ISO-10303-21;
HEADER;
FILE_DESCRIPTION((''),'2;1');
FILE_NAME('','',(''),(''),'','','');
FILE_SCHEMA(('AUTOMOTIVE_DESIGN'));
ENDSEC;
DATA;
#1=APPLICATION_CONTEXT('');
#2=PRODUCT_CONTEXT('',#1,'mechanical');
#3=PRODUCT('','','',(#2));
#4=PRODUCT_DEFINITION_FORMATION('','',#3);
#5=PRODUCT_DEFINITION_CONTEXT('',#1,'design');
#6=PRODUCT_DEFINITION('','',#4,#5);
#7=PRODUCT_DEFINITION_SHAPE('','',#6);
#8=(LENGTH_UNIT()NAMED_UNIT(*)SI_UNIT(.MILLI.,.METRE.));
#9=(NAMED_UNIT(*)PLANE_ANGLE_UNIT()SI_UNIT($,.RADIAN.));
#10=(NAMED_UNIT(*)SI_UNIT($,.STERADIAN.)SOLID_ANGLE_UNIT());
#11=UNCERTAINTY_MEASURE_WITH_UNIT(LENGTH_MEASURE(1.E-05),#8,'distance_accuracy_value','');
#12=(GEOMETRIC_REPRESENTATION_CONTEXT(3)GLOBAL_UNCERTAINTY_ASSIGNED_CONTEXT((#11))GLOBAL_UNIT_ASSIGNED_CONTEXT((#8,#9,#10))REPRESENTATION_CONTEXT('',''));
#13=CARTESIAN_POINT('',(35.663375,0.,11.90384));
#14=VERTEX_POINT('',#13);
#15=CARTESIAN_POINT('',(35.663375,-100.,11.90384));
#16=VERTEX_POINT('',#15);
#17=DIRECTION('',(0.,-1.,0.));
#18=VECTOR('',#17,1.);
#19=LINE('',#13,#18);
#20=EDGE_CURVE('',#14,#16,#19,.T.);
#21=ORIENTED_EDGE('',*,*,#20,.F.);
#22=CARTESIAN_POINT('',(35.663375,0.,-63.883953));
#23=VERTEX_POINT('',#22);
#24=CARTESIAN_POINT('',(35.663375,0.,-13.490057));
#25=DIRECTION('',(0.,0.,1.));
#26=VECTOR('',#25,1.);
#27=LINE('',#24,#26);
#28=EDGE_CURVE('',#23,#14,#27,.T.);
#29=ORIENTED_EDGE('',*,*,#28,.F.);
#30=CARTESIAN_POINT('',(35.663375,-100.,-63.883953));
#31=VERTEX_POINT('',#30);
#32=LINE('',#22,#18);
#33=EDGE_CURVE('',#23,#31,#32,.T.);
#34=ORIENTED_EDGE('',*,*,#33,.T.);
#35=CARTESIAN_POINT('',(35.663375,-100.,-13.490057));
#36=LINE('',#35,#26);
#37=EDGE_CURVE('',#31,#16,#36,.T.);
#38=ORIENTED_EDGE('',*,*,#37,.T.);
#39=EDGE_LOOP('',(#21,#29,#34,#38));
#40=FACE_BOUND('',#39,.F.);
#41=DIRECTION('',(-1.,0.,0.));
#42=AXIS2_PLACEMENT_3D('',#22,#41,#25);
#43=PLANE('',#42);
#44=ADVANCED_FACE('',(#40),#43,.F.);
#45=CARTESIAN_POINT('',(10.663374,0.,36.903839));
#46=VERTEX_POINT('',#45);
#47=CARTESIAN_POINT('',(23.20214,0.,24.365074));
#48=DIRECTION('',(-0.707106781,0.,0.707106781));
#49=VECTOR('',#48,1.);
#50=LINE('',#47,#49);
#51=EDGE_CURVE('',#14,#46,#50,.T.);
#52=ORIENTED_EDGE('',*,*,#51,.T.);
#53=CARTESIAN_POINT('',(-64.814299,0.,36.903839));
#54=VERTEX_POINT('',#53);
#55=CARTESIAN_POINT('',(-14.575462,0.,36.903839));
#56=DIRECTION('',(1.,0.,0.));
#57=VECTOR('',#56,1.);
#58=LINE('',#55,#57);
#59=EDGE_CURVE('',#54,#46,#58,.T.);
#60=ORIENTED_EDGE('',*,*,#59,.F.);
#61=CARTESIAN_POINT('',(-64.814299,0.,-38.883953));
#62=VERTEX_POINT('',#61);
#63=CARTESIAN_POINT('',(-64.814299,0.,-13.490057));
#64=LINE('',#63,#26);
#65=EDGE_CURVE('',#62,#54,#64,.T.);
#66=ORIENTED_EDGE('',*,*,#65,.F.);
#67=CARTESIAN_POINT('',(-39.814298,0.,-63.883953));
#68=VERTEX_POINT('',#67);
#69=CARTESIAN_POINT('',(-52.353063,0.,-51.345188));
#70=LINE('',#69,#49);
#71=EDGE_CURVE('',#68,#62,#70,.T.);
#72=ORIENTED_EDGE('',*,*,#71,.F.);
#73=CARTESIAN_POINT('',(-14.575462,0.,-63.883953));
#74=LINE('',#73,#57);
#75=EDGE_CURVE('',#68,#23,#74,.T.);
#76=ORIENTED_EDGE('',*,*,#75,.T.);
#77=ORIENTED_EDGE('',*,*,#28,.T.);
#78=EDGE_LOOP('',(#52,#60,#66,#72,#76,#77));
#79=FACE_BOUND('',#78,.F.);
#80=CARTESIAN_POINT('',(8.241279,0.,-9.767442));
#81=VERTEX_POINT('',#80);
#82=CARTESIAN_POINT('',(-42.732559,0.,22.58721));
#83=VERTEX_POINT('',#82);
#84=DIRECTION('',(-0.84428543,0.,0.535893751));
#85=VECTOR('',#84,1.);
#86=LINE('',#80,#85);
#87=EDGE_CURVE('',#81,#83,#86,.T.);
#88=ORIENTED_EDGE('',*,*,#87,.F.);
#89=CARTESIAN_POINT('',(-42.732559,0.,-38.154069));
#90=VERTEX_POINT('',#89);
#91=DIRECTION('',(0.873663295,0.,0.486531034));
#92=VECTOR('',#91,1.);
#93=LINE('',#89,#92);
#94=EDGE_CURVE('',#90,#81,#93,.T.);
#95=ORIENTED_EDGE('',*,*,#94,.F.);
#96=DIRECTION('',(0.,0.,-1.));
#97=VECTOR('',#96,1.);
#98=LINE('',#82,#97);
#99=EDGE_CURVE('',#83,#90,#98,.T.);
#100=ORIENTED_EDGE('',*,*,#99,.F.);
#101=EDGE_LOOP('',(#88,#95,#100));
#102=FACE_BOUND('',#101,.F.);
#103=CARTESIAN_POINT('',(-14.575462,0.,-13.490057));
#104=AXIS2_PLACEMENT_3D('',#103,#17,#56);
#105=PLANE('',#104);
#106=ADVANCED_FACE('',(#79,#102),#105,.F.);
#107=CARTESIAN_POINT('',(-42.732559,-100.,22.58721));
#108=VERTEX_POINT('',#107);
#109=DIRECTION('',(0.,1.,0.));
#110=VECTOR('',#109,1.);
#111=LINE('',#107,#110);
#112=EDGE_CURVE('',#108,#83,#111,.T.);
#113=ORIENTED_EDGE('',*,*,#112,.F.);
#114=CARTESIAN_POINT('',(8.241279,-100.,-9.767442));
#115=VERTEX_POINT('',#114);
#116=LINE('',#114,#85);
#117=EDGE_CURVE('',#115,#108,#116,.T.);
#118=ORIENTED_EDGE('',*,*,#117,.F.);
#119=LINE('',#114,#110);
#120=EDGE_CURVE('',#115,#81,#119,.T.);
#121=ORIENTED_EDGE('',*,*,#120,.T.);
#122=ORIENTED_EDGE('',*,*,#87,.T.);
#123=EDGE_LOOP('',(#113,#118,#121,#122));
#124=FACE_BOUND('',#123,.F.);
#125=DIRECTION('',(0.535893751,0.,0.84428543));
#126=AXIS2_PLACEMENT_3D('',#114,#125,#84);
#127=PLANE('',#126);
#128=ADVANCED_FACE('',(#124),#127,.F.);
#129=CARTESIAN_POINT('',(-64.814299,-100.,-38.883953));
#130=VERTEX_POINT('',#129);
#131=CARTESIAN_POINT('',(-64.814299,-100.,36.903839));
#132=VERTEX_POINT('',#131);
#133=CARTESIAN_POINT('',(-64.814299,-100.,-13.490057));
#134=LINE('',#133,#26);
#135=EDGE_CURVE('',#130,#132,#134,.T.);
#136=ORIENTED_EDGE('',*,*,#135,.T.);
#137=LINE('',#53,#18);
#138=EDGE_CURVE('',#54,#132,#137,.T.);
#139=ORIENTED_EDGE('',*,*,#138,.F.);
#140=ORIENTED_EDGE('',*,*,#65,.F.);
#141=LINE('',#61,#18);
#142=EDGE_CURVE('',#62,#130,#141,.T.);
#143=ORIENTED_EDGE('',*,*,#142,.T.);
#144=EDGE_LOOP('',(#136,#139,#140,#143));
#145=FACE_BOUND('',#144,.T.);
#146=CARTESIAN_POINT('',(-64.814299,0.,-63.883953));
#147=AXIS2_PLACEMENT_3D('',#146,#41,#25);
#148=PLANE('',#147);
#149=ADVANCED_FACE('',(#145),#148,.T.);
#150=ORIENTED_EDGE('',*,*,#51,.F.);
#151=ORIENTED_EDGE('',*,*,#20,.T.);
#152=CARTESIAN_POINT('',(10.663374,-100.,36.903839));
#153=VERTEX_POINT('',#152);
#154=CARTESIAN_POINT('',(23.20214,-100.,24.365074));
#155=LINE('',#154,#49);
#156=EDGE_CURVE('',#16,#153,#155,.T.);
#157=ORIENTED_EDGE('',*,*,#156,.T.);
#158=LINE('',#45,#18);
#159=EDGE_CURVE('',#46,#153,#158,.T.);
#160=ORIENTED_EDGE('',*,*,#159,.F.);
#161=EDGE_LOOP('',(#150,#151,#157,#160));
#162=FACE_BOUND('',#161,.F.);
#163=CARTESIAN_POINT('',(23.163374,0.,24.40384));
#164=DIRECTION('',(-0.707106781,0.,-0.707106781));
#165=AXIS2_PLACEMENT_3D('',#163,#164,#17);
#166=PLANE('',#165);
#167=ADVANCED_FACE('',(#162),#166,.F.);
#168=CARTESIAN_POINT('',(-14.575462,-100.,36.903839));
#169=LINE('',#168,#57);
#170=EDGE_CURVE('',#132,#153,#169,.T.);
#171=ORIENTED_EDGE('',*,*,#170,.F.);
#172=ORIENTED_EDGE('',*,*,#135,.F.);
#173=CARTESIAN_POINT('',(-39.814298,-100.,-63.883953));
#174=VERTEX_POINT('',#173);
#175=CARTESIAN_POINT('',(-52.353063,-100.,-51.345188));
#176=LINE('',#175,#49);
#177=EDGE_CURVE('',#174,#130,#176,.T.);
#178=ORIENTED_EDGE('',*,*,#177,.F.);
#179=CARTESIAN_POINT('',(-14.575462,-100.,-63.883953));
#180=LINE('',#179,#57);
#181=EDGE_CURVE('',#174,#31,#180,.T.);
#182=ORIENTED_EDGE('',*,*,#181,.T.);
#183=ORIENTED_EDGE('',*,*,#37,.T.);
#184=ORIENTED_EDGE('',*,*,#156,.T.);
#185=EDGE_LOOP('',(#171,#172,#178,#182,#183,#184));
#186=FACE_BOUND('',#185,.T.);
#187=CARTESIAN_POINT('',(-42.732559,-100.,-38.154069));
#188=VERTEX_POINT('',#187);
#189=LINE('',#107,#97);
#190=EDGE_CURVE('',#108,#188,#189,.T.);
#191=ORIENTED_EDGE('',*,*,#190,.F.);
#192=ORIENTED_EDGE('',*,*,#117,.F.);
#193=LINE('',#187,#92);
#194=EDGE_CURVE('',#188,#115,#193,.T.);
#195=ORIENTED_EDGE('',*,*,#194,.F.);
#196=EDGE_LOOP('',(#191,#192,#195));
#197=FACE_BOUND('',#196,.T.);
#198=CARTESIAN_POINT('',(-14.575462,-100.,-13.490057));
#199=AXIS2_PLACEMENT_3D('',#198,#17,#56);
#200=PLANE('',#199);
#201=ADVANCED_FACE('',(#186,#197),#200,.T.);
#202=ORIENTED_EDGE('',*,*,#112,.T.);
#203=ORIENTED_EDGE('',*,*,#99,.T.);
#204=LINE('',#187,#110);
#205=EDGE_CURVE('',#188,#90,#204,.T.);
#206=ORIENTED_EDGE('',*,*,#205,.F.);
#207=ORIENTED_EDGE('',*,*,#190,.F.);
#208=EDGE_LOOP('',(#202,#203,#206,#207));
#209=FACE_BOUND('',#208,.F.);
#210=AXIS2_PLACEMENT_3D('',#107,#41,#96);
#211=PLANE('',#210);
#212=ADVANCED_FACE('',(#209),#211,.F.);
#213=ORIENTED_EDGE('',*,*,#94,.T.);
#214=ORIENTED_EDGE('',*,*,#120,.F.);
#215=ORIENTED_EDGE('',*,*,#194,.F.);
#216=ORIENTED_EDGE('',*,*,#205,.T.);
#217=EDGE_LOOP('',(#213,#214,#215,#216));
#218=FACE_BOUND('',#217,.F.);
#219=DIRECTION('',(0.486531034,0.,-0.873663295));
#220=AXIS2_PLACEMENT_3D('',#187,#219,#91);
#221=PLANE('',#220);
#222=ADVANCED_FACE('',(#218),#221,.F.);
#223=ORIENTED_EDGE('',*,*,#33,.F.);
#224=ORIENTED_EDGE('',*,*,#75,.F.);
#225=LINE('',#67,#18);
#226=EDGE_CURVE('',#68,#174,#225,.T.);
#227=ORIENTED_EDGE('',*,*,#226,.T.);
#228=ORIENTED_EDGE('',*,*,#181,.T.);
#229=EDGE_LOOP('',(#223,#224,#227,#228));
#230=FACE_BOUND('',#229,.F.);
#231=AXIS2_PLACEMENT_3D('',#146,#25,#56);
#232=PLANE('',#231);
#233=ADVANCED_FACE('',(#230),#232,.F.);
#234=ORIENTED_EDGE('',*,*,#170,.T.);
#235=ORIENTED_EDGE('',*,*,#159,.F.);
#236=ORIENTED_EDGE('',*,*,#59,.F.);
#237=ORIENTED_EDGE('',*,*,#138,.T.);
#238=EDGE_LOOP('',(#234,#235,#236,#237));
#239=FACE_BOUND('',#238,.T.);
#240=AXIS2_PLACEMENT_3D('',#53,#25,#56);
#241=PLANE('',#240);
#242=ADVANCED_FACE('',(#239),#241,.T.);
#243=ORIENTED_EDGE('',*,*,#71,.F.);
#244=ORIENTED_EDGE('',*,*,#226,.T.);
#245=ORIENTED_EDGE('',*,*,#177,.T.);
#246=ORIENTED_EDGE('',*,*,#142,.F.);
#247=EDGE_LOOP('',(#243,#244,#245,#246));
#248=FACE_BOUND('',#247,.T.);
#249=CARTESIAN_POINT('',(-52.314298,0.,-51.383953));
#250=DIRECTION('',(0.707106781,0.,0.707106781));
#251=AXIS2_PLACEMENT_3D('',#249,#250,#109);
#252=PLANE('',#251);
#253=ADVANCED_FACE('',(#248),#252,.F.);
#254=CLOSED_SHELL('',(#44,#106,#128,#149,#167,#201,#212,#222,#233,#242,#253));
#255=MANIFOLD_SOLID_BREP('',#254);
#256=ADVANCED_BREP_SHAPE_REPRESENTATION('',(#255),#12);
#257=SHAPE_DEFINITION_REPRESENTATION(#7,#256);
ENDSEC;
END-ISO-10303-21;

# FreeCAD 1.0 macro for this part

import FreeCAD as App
import Part
import Sketcher
Q = App.Units.Quantity


def edges_at(feature, points):
    """Names of the edges that pass closest to the given points."""
    edges = feature.Shape.Edges
    near = lambda p: min(range(len(edges)), key=lambda i: edges[i].distToShape(Part.Vertex(*p))[0])
    return sorted({f"Edge{near(p) + 1}" for p in points})

doc = App.newDocument("Part")
body = doc.addObject("PartDesign::Body", "Body")

sketch1 = body.newObject("Sketcher::SketchObject", "Sketch")
sketch1.AttachmentSupport = (doc.getObject("XZ_Plane"), [""])
sketch1.MapMode = "FlatFace"
sketch1.addGeometry(Part.LineSegment(App.Vector(-65, 37, 0), App.Vector(-65, -64, 0)), False)
sketch1.addGeometry(Part.LineSegment(App.Vector(-65, -64, 0), App.Vector(36, -64, 0)), False)
sketch1.addGeometry(Part.LineSegment(App.Vector(36, -64, 0), App.Vector(36, 37, 0)), False)
sketch1.addGeometry(Part.LineSegment(App.Vector(36, 37, 0), App.Vector(-65, 37, 0)), False)
sketch1.addConstraint(Sketcher.Constraint("Coincident", 0, 2, 1, 1))
sketch1.addConstraint(Sketcher.Constraint("Coincident", 1, 2, 2, 1))
sketch1.addConstraint(Sketcher.Constraint("Coincident", 2, 2, 3, 1))
sketch1.addConstraint(Sketcher.Constraint("Coincident", 3, 2, 0, 1))
sketch1.addConstraint(Sketcher.Constraint("Vertical", 0))
sketch1.addConstraint(Sketcher.Constraint("Horizontal", 1))
sketch1.addConstraint(Sketcher.Constraint("Vertical", 2))
sketch1.addConstraint(Sketcher.Constraint("Horizontal", 3))
sketch1.addConstraint(Sketcher.Constraint("DistanceX", 0, 2, -1, 1, Q("64.814299 mm")))
sketch1.addConstraint(Sketcher.Constraint("DistanceX", 1, 1, 1, 2, Q("100.477673 mm")))
sketch1.addConstraint(Sketcher.Constraint("DistanceY", 0, 2, 0, 1, Q("100.787793 mm")))
sketch1.addConstraint(Sketcher.Constraint("DistanceY", -1, 1, 2, 2, Q("36.903839 mm")))
pad1 = body.newObject("PartDesign::Pad", "Pad")
pad1.Profile = sketch1
pad1.Length = 100
doc.recompute()

chamfer = body.newObject("PartDesign::Chamfer", "Chamfer")
chamfer.Base = (pad1, edges_at(pad1, [(35.663, -50, 36.904)]))
chamfer.Size = 25
doc.recompute()

chamfer2 = body.newObject("PartDesign::Chamfer", "Chamfer001")
chamfer2.Base = (chamfer, edges_at(chamfer, [(-64.814, -50, -63.884)]))
chamfer2.Size = 25

sketch2 = body.newObject("Sketcher::SketchObject", "Sketch001")
sketch2.AttachmentSupport = (doc.getObject("XZ_Plane"), [""])
sketch2.MapMode = "FlatFace"
sketch2.AttachmentOffset = App.Placement(App.Vector(0, 0, 100), App.Rotation())
sketch2.addGeometry(Part.LineSegment(App.Vector(-43, 23, 0), App.Vector(-43, -38, 0)), False)
sketch2.addGeometry(Part.LineSegment(App.Vector(-43, -38, 0), App.Vector(8, -10, 0)), False)
sketch2.addGeometry(Part.LineSegment(App.Vector(8, -10, 0), App.Vector(-43, 23, 0)), False)
sketch2.addConstraint(Sketcher.Constraint("Coincident", 0, 2, 1, 1))
sketch2.addConstraint(Sketcher.Constraint("Coincident", 1, 2, 2, 1))
sketch2.addConstraint(Sketcher.Constraint("Coincident", 2, 2, 0, 1))
sketch2.addConstraint(Sketcher.Constraint("Vertical", 0))
sketch2.addConstraint(Sketcher.Constraint("DistanceY", 0, 2, 0, 1, Q("60.741279 mm")))
sketch2.addConstraint(Sketcher.Constraint("DistanceX", 0, 2, -1, 1, Q("42.732559 mm")))
sketch2.addConstraint(Sketcher.Constraint("DistanceY", 0, 2, -1, 1, Q("38.154069 mm")))
sketch2.addConstraint(Sketcher.Constraint("DistanceX", -1, 1, 1, 2, Q("8.241279 mm")))
sketch2.addConstraint(Sketcher.Constraint("Distance", 1, Q("58.344946 mm")))
pocket1 = body.newObject("PartDesign::Pocket", "Pocket")
pocket1.Profile = sketch2
pocket1.Length = 100

doc.recompute()
